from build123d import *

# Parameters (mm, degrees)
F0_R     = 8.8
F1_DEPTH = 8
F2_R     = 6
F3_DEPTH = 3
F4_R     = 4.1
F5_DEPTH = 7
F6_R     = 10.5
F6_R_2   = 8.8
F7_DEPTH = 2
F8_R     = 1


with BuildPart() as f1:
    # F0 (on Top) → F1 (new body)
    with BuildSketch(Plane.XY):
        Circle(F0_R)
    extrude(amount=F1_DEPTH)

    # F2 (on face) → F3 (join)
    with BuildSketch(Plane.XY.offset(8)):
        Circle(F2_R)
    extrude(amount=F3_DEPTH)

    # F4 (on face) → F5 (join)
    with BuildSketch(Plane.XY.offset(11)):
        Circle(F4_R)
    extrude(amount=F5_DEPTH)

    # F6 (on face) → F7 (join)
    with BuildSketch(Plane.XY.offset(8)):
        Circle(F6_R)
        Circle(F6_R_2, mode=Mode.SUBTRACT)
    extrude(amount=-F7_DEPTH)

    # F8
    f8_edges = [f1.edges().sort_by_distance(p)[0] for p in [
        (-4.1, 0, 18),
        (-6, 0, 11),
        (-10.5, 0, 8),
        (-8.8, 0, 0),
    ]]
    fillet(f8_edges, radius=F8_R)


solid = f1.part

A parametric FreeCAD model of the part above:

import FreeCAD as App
import Part
import Sketcher
from FreeCAD import Vector
Q = App.Units.Quantity


def edges_at(feature, points):
    """Names of the edges that pass closest to the given points."""
    edges = feature.Shape.Edges
    near = lambda p: min(range(len(edges)), key=lambda i: edges[i].distToShape(Part.Vertex(*p))[0])
    return sorted({f"Edge{near(p) + 1}" for p in points})

doc = App.newDocument("Part")
body = doc.addObject("PartDesign::Body", "Body")

# Sketch on XY plane
sketch1 = body.newObject("Sketcher::SketchObject", "Sketch")
sketch1.AttachmentSupport = (doc.getObject("XY_Plane"), [""])
sketch1.MapMode = "FlatFace"
sketch1.addGeometry(Part.Circle(Vector(0, 0, 0), Vector(0, 0, 1), 9), False)
sketch1.addConstraint([
    Sketcher.Constraint("Coincident", 0, 3, -1, 1),
    Sketcher.Constraint("Diameter", 0, Q("17.6 mm")),
])
pad1 = body.newObject("PartDesign::Pad", "Pad")
pad1.Profile = sketch1
pad1.Length = 8

# Sketch on XY plane
sketch2 = body.newObject("Sketcher::SketchObject", "Sketch001")
sketch2.AttachmentSupport = (doc.getObject("XY_Plane"), [""])
sketch2.MapMode = "FlatFace"
sketch2.AttachmentOffset = App.Placement(Vector(0, 0, 8), App.Rotation())
sketch2.addGeometry(Part.Circle(Vector(0, 0, 0), Vector(0, 0, 1), 6), False)
sketch2.addConstraint([
    Sketcher.Constraint("Coincident", 0, 3, -1, 1),
    Sketcher.Constraint("Diameter", 0, Q("12 mm")),
])
pad2 = body.newObject("PartDesign::Pad", "Pad001")
pad2.Profile = sketch2
pad2.Length = 3

# Sketch on XY plane
sketch3 = body.newObject("Sketcher::SketchObject", "Sketch002")
sketch3.AttachmentSupport = (doc.getObject("XY_Plane"), [""])
sketch3.MapMode = "FlatFace"
sketch3.AttachmentOffset = App.Placement(Vector(0, 0, 11), App.Rotation())
sketch3.addGeometry(Part.Circle(Vector(0, 0, 0), Vector(0, 0, 1), 4.1), False)
sketch3.addConstraint([
    Sketcher.Constraint("Coincident", 0, 3, -1, 1),
    Sketcher.Constraint("Diameter", 0, Q("8.2 mm")),
])
pad3 = body.newObject("PartDesign::Pad", "Pad002")
pad3.Profile = sketch3
pad3.Length = 7

# Sketch on XY plane
sketch4 = body.newObject("Sketcher::SketchObject", "Sketch003")
sketch4.AttachmentSupport = (doc.getObject("XY_Plane"), [""])
sketch4.MapMode = "FlatFace"
sketch4.AttachmentOffset = App.Placement(Vector(0, 0, 8), App.Rotation())
sketch4.addGeometry([
    Part.Circle(Vector(0, 0, 0), Vector(0, 0, 1), 10),
    Part.Circle(Vector(0, 0, 0), Vector(0, 0, 1), 9),
], False)
sketch4.addConstraint([
    Sketcher.Constraint("Coincident", 0, 3, -1, 1),
    Sketcher.Constraint("Coincident", 1, 3, -1, 1),
    Sketcher.Constraint("Diameter", 0, Q("21 mm")),
    Sketcher.Constraint("Diameter", 1, Q("17.6 mm")),
])
pad4 = body.newObject("PartDesign::Pad", "Pad003")
pad4.Profile = sketch4
pad4.Length = 2
pad4.Reversed = True
doc.recompute()

fillet = body.newObject("PartDesign::Fillet", "Fillet")
fillet.Base = (pad4, edges_at(pad4, [
    (-4.1, 0, 18),
    (-6, 0, 11),
    (-10.5, 0, 8),
    (-8.8, 0, 0),
]))
fillet.Radius = 1

doc.recompute()
